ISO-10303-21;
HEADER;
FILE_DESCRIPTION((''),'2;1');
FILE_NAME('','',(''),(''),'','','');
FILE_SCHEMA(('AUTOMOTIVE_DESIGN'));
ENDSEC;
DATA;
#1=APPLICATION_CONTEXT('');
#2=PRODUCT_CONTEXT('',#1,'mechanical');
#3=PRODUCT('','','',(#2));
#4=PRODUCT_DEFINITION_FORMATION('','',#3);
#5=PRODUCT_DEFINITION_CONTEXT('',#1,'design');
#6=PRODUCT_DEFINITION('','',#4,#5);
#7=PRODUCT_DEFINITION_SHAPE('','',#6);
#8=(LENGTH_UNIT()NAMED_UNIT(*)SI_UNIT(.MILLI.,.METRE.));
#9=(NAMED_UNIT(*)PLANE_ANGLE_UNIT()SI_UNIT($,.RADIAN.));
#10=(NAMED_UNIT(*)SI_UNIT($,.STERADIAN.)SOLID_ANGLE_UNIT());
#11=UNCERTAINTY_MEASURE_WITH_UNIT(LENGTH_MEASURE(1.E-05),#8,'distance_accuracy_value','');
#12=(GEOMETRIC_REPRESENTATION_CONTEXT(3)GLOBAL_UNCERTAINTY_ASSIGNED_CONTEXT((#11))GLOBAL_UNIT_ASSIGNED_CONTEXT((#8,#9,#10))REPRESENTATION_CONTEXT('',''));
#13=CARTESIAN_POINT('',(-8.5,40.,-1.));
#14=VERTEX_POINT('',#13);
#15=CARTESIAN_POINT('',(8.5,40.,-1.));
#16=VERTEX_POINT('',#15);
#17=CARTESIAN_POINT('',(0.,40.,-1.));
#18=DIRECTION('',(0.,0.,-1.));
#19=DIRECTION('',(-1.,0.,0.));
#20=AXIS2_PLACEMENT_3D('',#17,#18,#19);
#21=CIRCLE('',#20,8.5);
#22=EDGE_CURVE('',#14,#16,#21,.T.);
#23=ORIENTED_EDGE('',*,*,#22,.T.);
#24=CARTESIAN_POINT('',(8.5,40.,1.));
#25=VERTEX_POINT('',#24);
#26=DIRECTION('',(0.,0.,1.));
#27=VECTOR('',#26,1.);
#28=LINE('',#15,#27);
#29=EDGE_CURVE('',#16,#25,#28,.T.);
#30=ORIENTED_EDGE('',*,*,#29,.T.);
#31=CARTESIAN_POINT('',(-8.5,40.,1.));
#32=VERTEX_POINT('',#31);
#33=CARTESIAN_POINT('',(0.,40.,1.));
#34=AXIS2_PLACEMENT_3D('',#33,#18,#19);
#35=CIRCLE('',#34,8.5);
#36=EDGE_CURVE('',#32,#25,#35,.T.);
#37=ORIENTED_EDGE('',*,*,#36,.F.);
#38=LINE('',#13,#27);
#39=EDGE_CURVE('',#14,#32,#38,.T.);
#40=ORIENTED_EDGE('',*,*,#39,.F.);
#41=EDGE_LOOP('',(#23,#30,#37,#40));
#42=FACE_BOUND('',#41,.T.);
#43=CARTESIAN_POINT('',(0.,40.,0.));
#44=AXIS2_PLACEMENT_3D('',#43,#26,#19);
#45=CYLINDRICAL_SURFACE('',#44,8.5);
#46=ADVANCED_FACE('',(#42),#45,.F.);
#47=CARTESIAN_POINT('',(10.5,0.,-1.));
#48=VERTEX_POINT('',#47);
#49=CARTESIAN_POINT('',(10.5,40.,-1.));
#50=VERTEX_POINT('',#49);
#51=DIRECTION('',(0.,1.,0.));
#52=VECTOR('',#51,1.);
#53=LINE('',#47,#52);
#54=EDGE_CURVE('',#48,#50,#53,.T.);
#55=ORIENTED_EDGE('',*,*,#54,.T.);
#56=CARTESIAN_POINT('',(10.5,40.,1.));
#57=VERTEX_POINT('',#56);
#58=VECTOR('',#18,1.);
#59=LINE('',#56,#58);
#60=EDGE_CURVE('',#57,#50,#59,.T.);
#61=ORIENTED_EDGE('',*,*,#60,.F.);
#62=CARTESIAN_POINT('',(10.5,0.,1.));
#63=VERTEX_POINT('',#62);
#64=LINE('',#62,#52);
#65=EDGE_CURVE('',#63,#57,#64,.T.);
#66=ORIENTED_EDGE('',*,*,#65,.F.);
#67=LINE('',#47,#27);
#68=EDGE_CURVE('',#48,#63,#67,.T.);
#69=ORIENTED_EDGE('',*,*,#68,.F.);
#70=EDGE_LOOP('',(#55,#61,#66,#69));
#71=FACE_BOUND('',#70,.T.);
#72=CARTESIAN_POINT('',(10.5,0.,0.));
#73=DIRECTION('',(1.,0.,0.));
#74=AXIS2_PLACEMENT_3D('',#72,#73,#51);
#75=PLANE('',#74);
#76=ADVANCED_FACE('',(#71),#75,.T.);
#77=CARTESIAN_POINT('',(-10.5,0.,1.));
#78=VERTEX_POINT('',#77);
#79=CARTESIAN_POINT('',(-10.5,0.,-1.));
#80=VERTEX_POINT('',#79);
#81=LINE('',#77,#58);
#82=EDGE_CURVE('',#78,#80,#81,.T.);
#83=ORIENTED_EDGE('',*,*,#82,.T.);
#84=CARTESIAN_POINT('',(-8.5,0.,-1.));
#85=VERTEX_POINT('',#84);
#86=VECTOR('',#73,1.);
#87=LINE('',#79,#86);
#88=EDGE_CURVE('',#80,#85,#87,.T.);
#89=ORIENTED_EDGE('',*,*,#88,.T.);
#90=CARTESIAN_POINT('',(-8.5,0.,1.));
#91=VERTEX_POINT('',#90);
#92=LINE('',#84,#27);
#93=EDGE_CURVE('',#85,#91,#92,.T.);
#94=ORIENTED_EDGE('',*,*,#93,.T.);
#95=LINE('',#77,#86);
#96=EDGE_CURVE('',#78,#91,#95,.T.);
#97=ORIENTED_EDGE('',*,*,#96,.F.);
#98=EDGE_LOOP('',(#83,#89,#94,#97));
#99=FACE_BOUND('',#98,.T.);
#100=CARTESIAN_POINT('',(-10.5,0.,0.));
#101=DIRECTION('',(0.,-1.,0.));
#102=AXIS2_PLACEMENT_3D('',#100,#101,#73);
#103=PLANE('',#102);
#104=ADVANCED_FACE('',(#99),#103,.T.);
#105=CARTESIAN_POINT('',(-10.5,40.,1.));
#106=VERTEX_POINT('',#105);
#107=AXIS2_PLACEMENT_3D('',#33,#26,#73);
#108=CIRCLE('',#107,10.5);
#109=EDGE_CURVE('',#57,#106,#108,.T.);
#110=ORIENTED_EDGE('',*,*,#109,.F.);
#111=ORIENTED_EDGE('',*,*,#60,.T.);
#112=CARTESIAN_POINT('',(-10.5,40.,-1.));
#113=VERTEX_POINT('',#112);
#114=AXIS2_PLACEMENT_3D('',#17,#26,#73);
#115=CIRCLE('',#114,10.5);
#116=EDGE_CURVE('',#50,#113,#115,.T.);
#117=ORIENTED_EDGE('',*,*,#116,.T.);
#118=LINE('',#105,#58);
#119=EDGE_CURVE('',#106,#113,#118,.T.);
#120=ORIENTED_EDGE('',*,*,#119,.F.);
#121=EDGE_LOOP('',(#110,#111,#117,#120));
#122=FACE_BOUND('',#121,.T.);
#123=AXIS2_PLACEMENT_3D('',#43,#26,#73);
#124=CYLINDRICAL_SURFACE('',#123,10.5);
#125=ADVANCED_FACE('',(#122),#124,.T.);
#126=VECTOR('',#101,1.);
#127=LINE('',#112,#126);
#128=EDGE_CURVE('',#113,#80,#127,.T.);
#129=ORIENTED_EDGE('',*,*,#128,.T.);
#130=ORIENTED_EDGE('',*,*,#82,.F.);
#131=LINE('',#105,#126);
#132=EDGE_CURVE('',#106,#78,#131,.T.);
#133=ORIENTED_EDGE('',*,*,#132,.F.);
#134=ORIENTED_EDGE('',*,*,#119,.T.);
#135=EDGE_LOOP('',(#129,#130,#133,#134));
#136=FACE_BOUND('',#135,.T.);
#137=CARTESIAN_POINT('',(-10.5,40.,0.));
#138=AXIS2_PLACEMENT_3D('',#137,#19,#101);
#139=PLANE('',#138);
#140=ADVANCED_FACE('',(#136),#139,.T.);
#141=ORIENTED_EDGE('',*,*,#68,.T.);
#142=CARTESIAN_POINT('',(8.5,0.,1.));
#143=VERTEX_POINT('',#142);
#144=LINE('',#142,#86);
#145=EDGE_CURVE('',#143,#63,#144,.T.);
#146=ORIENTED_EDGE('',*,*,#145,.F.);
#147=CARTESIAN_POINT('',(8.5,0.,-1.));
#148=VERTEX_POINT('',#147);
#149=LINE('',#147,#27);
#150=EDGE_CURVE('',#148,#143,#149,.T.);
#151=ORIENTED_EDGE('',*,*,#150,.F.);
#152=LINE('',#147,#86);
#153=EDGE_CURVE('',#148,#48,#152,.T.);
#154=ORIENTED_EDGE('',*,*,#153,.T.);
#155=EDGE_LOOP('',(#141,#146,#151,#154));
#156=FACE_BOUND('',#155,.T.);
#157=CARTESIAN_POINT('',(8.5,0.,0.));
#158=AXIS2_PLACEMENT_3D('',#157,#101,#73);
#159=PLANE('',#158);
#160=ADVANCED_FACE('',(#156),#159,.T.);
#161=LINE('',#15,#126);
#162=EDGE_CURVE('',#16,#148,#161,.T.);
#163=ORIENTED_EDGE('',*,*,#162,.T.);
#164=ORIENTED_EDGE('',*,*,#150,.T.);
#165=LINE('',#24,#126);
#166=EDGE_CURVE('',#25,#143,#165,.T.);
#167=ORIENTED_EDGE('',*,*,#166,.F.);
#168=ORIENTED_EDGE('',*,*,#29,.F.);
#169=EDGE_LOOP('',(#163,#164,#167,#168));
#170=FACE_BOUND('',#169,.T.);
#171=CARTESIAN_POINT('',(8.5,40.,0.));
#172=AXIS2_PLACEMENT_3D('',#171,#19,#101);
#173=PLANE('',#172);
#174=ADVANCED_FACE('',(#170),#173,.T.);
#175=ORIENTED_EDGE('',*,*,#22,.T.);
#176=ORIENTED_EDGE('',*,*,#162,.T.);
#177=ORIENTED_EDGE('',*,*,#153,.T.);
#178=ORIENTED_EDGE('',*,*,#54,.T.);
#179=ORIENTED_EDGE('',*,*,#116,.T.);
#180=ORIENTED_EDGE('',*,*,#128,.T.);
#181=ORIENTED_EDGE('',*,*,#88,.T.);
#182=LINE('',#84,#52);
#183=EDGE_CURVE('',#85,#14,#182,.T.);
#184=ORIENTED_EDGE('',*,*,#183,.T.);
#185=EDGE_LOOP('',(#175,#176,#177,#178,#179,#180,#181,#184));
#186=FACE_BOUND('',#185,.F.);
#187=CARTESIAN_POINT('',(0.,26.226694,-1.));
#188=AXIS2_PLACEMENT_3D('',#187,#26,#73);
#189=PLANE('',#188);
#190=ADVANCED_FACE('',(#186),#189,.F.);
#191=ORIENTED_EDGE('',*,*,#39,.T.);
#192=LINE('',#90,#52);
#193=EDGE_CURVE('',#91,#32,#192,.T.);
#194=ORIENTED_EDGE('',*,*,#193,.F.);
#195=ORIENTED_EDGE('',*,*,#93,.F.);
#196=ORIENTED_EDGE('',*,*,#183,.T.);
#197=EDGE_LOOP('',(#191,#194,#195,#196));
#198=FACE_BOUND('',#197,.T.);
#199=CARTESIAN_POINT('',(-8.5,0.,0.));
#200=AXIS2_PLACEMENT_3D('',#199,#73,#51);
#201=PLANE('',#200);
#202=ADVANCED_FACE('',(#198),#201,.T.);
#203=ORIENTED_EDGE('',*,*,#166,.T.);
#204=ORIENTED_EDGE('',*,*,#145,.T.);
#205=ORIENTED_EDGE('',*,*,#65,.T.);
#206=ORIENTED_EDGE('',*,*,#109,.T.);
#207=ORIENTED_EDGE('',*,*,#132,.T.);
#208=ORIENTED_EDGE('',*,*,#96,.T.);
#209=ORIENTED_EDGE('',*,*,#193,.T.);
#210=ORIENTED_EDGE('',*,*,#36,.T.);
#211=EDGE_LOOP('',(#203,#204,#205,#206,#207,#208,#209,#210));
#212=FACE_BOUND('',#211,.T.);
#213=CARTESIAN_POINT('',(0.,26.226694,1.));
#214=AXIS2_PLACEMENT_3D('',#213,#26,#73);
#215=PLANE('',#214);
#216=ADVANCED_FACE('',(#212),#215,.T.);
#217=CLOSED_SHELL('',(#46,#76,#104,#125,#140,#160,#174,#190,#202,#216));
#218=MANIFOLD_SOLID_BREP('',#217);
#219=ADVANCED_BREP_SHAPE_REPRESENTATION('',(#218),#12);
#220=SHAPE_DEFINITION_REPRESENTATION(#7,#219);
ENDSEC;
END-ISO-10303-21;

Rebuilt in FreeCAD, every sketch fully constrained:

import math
import FreeCAD as App
import Part
import Sketcher
from FreeCAD import Vector
Q = App.Units.Quantity

doc = App.newDocument("Part")
params = doc.addObject("Spreadsheet::Sheet", "Params")
for row, (alias, value) in enumerate([
    ("sketch1_radius", "8.5 mm"),
    ("sketch1_radius2", "10.5 mm"),
    ("sketch1_height", "40 mm"),
    ("pad1_length", "2 mm"),
], start=1):
    params.set(f"A{row}", alias)
    params.set(f"B{row}", "=" + value)
    params.setAlias(f"B{row}", alias)

body = doc.addObject("PartDesign::Body", "Body")

sketch1 = doc.addObject("Sketcher::SketchObject", "Sketch")
body.addObject(sketch1)
sketch1.AttachmentSupport = (doc.XY_Plane, [""])
sketch1.MapMode = "FlatFace"
sketch1.addGeometry([
    Part.LineSegment(Vector(-10.5, 0, 0), Vector(-8.5, 0, 0)),
    Part.LineSegment(Vector(-8.5, 0, 0), Vector(-8.5, 40, 0)),
    Part.ArcOfCircle(Part.Circle(Vector(0, 40, 0), Vector(0, 0, 1), 8.5), math.radians(0), math.radians(180)),
    Part.LineSegment(Vector(8.5, 40, 0), Vector(8.5, 0, 0)),
    Part.LineSegment(Vector(8.5, 0, 0), Vector(10.5, 0, 0)),
    Part.LineSegment(Vector(10.5, 0, 0), Vector(10.5, 40, 0)),
    Part.ArcOfCircle(Part.Circle(Vector(0, 40, 0), Vector(0, 0, 1), 10.5), math.radians(0), math.radians(180)),
    Part.LineSegment(Vector(-10.5, 40, 0), Vector(-10.5, 0, 0)),
], False)
sketch1.addConstraint([
    Sketcher.Constraint("Coincident", 0, 2, 1, 1),
    Sketcher.Constraint("Tangent", 1, 2, 2, 2),
    Sketcher.Constraint("Tangent", 2, 1, 3, 1),
    Sketcher.Constraint("Coincident", 3, 2, 4, 1),
    Sketcher.Constraint("Coincident", 4, 2, 5, 1),
    Sketcher.Constraint("Tangent", 5, 2, 6, 1),
    Sketcher.Constraint("Tangent", 6, 2, 7, 1),
    Sketcher.Constraint("Coincident", 7, 2, 0, 1),
    Sketcher.Constraint("Horizontal", 0),
    Sketcher.Constraint("Vertical", 1),
    Sketcher.Constraint("Vertical", 3),
    Sketcher.Constraint("Horizontal", 4),
    Sketcher.Constraint("Vertical", 5),
    Sketcher.Constraint("Vertical", 7),
    Sketcher.Constraint("Coincident", 6, 3, 2, 3),
    Sketcher.Constraint("Symmetric", 0, 2, 3, 2, -1, 1),
    Sketcher.Constraint("PointOnObject", 0, 2, -1),
    Sketcher.Constraint("Radius", 2, Q("8.5 mm")),
    Sketcher.Constraint("Radius", 6, Q("10.5 mm")),
    Sketcher.Constraint("DistanceY", 1, 1, 1, 2, Q("40 mm")),
])
sketch1.setExpression("Constraints[17]", "Params.sketch1_radius")
sketch1.setExpression("Constraints[18]", "Params.sketch1_radius2")
sketch1.setExpression("Constraints[19]", "Params.sketch1_height")
pad1 = doc.addObject("PartDesign::Pad", "Pad")
body.addObject(pad1)
pad1.Profile = sketch1
pad1.setExpression("Length", "Params.pad1_length")
pad1.Midplane = True

doc.recompute()
